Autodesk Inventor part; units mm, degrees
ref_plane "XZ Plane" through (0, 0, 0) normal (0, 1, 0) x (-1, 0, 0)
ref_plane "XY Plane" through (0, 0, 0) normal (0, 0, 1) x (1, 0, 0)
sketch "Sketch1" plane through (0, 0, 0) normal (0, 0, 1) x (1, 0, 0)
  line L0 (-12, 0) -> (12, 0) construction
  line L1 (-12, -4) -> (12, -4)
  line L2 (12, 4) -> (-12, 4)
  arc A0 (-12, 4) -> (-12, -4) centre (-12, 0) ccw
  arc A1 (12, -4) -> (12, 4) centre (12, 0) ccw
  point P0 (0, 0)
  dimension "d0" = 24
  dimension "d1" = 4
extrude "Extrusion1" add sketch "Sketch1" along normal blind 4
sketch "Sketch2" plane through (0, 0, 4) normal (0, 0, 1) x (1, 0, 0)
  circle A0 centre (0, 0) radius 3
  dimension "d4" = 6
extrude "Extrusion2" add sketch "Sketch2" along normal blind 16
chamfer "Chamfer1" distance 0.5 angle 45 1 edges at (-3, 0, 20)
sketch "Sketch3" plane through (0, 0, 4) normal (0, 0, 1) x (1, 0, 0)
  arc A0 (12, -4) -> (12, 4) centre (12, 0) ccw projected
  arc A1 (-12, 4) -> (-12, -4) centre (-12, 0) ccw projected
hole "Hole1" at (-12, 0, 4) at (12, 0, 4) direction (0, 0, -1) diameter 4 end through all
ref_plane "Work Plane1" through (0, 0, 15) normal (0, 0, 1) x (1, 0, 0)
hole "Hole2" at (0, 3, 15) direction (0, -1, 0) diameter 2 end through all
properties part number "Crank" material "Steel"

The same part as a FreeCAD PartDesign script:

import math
import FreeCAD as App
import Part
import Sketcher
from FreeCAD import Vector
Q = App.Units.Quantity


def edges_at(feature, points):
    """Names of the edges that pass closest to the given points."""
    edges = feature.Shape.Edges
    near = lambda p: min(range(len(edges)), key=lambda i: edges[i].distToShape(Part.Vertex(*p))[0])
    return sorted({f"Edge{near(p) + 1}" for p in points})

doc = App.newDocument("Part")
params = doc.addObject("Spreadsheet::Sheet", "Params")
for row, (alias, value) in enumerate([
    ("sketch1_radius", "4 mm"),
    ("sketch1_width", "24 mm"),
    ("pad1_length", "4 mm"),
    ("sketch2_diameter", "6 mm"),
    ("pad2_length", "16 mm"),
    ("chamfer_size", "0.5 mm"),
    ("sketch3_diameter", "4 mm"),
    ("hole_diameter", "4 mm"),
    ("sketch4_diameter", "2 mm"),
    ("hole2_diameter", "2 mm"),
], start=1):
    params.set(f"A{row}", alias)
    params.set(f"B{row}", "=" + value)
    params.setAlias(f"B{row}", alias)

body = doc.addObject("PartDesign::Body", "Body")

# Sketch on XY plane
sketch1 = body.newObject("Sketcher::SketchObject", "Sketch")
sketch1.AttachmentSupport = (doc.getObject("XY_Plane"), [""])
sketch1.MapMode = "FlatFace"
sketch1.addGeometry([
    Part.ArcOfCircle(Part.Circle(Vector(-12, 0, 0), Vector(0, 0, 1), 4), math.radians(90), math.radians(270)),
    Part.LineSegment(Vector(-12, -4, 0), Vector(12, -4, 0)),
    Part.ArcOfCircle(Part.Circle(Vector(12, 0, 0), Vector(0, 0, 1), 4), math.radians(-90), math.radians(90)),
    Part.LineSegment(Vector(12, 4, 0), Vector(-12, 4, 0)),
], False)
sketch1.addConstraint([
    Sketcher.Constraint("Tangent", 0, 2, 1, 1),
    Sketcher.Constraint("Tangent", 1, 2, 2, 1),
    Sketcher.Constraint("Tangent", 2, 2, 3, 1),
    Sketcher.Constraint("Tangent", 3, 2, 0, 1),
    Sketcher.Constraint("Horizontal", 1),
    Sketcher.Constraint("Horizontal", 3),
    Sketcher.Constraint("Symmetric", 0, 3, 2, 3, -1, 1),
    Sketcher.Constraint("Radius", 0, Q("4 mm")),
    Sketcher.Constraint("DistanceX", 1, 1, 1, 2, Q("24 mm")),
])
sketch1.setExpression("Constraints[7]", "Params.sketch1_radius")
sketch1.setExpression("Constraints[8]", "Params.sketch1_width")
pad1 = body.newObject("PartDesign::Pad", "Pad")
pad1.Profile = sketch1
pad1.setExpression("Length", "Params.pad1_length")

# Sketch on XY plane
sketch2 = body.newObject("Sketcher::SketchObject", "Sketch001")
sketch2.AttachmentSupport = (doc.getObject("XY_Plane"), [""])
sketch2.MapMode = "FlatFace"
sketch2.AttachmentOffset = App.Placement(Vector(0, 0, 4), App.Rotation())
sketch2.addGeometry(Part.Circle(Vector(0, 0, 0), Vector(0, 0, 1), 3), False)
sketch2.addConstraint([
    Sketcher.Constraint("Coincident", 0, 3, -1, 1),
    Sketcher.Constraint("Diameter", 0, Q("6 mm")),
])
sketch2.setExpression("Constraints[1]", "Params.sketch2_diameter")
pad2 = body.newObject("PartDesign::Pad", "Pad001")
pad2.Profile = sketch2
pad2.setExpression("Length", "Params.pad2_length")
doc.recompute()

chamfer = body.newObject("PartDesign::Chamfer", "Chamfer")
chamfer.Base = (pad2, edges_at(pad2, [(-3, 0, 20)]))
chamfer.setExpression("Size", "Params.chamfer_size")

# Sketch on XY plane
sketch3 = body.newObject("Sketcher::SketchObject", "Sketch002")
sketch3.AttachmentSupport = (doc.getObject("XY_Plane"), [""])
sketch3.MapMode = "FlatFace"
sketch3.AttachmentOffset = App.Placement(Vector(0, 0, 4), App.Rotation())
sketch3.addGeometry([
    Part.Circle(Vector(-12, 0, 0), Vector(0, 0, 1), 2),
    Part.Circle(Vector(12, 0, 0), Vector(0, 0, 1), 2),
], False)
sketch3.addConstraint([
    Sketcher.Constraint("Equal", 0, 1),
    Sketcher.Constraint("Symmetric", 0, 3, 1, 3, -1, 1),
    Sketcher.Constraint("PointOnObject", 0, 3, -1),
    Sketcher.Constraint("Diameter", 0, Q("4 mm")),
    Sketcher.Constraint("DistanceX", 0, 3, -1, 1, Q("12 mm")),
])
sketch3.setExpression("Constraints[3]", "Params.sketch3_diameter")
doc.recompute()
hole = body.newObject("PartDesign::Hole", "Hole")
hole.Profile = sketch3
hole.ThreadType = "None"
hole.setExpression("Diameter", "Params.hole_diameter")
hole.DepthType = "ThroughAll"

# Sketch on XZ plane
sketch4 = body.newObject("Sketcher::SketchObject", "Sketch003")
sketch4.AttachmentSupport = (doc.getObject("XZ_Plane"), [""])
sketch4.MapMode = "FlatFace"
sketch4.AttachmentOffset = App.Placement(Vector(0, 0, -3), App.Rotation())
sketch4.addGeometry(Part.Circle(Vector(0, 15, 0), Vector(0, 0, 1), 1), False)
sketch4.addConstraint([
    Sketcher.Constraint("PointOnObject", 0, 3, -2),
    Sketcher.Constraint("Diameter", 0, Q("2 mm")),
    Sketcher.Constraint("DistanceY", -1, 1, 0, 3, Q("15 mm")),
])
sketch4.setExpression("Constraints[1]", "Params.sketch4_diameter")
doc.recompute()
hole2 = body.newObject("PartDesign::Hole", "Hole001")
hole2.Profile = sketch4
hole2.ThreadType = "None"
hole2.setExpression("Diameter", "Params.hole2_diameter")
hole2.DepthType = "ThroughAll"
hole2.Reversed = True

doc.recompute()
